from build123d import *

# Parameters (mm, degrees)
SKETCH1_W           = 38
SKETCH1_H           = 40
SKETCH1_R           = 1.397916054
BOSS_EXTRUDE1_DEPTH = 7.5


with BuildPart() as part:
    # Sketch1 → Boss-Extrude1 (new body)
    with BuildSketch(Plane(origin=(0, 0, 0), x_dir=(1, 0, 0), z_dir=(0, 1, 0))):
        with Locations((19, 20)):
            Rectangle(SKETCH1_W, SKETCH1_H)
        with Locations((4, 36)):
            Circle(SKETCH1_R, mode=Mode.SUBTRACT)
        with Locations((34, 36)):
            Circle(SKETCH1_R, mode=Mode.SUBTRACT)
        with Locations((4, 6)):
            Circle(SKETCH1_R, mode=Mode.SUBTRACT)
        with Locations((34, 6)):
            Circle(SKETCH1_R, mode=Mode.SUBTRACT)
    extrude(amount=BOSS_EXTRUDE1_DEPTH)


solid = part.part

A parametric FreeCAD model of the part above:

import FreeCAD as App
import Part
import Sketcher
Q = App.Units.Quantity


def add_polygon(sketch, points):
    """Adds a closed chain of lines whose ends are joined by coincident constraints."""
    first, n = sketch.GeometryCount, len(points)
    for a, b in zip(points, points[1:] + points[:1]):
        sketch.addGeometry(Part.LineSegment(App.Vector(*a, 0), App.Vector(*b, 0)), False)
    for i in range(n):
        sketch.addConstraint(Sketcher.Constraint("Coincident", first + i, 2, first + (i + 1) % n, 1))

doc = App.newDocument("Part")
body = doc.addObject("PartDesign::Body", "Body")

sketch1 = body.newObject("Sketcher::SketchObject", "Sketch")
sketch1.AttachmentSupport = (doc.getObject("XZ_Plane"), [""])
sketch1.MapMode = "FlatFace"
add_polygon(sketch1, [(0, -40), (0, 0), (38, 0), (38, -40)])
sketch1.addGeometry(Part.Circle(App.Vector(4, -6, 0), App.Vector(0, 0, 1), 1.4), False)
sketch1.addGeometry(Part.Circle(App.Vector(34, -6, 0), App.Vector(0, 0, 1), 1.4), False)
sketch1.addGeometry(Part.Circle(App.Vector(4, -36, 0), App.Vector(0, 0, 1), 1.4), False)
sketch1.addGeometry(Part.Circle(App.Vector(34, -36, 0), App.Vector(0, 0, 1), 1.4), False)
sketch1.addConstraint([
    Sketcher.Constraint("Vertical", 0),
    Sketcher.Constraint("Horizontal", 1),
    Sketcher.Constraint("Vertical", 2),
    Sketcher.Constraint("Horizontal", 3),
    Sketcher.Constraint("Coincident", 0, 2, -1, 1),
    Sketcher.Constraint("Equal", 4, 5),
    Sketcher.Constraint("Equal", 5, 6),
    Sketcher.Constraint("Equal", 6, 7),
    Sketcher.Constraint("Horizontal", 4, 3, 5, 3),
    Sketcher.Constraint("Horizontal", 6, 3, 7, 3),
    Sketcher.Constraint("Vertical", 4, 3, 6, 3),
    Sketcher.Constraint("Vertical", 5, 3, 7, 3),
    Sketcher.Constraint("DistanceX", 1, 1, 1, 2, Q("38 mm")),
    Sketcher.Constraint("DistanceY", 0, 1, 0, 2, Q("40 mm")),
    Sketcher.Constraint("DistanceX", -1, 1, 4, 3, Q("4 mm")),
    Sketcher.Constraint("DistanceY", 4, 3, -1, 1, Q("6 mm")),
    Sketcher.Constraint("DistanceX", -1, 1, 5, 3, Q("34 mm")),
    Sketcher.Constraint("DistanceY", 6, 3, -1, 1, Q("36 mm")),
    Sketcher.Constraint("Diameter", 4, Q("2.795832 mm")),
])
pad1 = body.newObject("PartDesign::Pad", "Pad")
pad1.Profile = sketch1
pad1.Length = 7.5
pad1.Reversed = True

doc.recompute()
